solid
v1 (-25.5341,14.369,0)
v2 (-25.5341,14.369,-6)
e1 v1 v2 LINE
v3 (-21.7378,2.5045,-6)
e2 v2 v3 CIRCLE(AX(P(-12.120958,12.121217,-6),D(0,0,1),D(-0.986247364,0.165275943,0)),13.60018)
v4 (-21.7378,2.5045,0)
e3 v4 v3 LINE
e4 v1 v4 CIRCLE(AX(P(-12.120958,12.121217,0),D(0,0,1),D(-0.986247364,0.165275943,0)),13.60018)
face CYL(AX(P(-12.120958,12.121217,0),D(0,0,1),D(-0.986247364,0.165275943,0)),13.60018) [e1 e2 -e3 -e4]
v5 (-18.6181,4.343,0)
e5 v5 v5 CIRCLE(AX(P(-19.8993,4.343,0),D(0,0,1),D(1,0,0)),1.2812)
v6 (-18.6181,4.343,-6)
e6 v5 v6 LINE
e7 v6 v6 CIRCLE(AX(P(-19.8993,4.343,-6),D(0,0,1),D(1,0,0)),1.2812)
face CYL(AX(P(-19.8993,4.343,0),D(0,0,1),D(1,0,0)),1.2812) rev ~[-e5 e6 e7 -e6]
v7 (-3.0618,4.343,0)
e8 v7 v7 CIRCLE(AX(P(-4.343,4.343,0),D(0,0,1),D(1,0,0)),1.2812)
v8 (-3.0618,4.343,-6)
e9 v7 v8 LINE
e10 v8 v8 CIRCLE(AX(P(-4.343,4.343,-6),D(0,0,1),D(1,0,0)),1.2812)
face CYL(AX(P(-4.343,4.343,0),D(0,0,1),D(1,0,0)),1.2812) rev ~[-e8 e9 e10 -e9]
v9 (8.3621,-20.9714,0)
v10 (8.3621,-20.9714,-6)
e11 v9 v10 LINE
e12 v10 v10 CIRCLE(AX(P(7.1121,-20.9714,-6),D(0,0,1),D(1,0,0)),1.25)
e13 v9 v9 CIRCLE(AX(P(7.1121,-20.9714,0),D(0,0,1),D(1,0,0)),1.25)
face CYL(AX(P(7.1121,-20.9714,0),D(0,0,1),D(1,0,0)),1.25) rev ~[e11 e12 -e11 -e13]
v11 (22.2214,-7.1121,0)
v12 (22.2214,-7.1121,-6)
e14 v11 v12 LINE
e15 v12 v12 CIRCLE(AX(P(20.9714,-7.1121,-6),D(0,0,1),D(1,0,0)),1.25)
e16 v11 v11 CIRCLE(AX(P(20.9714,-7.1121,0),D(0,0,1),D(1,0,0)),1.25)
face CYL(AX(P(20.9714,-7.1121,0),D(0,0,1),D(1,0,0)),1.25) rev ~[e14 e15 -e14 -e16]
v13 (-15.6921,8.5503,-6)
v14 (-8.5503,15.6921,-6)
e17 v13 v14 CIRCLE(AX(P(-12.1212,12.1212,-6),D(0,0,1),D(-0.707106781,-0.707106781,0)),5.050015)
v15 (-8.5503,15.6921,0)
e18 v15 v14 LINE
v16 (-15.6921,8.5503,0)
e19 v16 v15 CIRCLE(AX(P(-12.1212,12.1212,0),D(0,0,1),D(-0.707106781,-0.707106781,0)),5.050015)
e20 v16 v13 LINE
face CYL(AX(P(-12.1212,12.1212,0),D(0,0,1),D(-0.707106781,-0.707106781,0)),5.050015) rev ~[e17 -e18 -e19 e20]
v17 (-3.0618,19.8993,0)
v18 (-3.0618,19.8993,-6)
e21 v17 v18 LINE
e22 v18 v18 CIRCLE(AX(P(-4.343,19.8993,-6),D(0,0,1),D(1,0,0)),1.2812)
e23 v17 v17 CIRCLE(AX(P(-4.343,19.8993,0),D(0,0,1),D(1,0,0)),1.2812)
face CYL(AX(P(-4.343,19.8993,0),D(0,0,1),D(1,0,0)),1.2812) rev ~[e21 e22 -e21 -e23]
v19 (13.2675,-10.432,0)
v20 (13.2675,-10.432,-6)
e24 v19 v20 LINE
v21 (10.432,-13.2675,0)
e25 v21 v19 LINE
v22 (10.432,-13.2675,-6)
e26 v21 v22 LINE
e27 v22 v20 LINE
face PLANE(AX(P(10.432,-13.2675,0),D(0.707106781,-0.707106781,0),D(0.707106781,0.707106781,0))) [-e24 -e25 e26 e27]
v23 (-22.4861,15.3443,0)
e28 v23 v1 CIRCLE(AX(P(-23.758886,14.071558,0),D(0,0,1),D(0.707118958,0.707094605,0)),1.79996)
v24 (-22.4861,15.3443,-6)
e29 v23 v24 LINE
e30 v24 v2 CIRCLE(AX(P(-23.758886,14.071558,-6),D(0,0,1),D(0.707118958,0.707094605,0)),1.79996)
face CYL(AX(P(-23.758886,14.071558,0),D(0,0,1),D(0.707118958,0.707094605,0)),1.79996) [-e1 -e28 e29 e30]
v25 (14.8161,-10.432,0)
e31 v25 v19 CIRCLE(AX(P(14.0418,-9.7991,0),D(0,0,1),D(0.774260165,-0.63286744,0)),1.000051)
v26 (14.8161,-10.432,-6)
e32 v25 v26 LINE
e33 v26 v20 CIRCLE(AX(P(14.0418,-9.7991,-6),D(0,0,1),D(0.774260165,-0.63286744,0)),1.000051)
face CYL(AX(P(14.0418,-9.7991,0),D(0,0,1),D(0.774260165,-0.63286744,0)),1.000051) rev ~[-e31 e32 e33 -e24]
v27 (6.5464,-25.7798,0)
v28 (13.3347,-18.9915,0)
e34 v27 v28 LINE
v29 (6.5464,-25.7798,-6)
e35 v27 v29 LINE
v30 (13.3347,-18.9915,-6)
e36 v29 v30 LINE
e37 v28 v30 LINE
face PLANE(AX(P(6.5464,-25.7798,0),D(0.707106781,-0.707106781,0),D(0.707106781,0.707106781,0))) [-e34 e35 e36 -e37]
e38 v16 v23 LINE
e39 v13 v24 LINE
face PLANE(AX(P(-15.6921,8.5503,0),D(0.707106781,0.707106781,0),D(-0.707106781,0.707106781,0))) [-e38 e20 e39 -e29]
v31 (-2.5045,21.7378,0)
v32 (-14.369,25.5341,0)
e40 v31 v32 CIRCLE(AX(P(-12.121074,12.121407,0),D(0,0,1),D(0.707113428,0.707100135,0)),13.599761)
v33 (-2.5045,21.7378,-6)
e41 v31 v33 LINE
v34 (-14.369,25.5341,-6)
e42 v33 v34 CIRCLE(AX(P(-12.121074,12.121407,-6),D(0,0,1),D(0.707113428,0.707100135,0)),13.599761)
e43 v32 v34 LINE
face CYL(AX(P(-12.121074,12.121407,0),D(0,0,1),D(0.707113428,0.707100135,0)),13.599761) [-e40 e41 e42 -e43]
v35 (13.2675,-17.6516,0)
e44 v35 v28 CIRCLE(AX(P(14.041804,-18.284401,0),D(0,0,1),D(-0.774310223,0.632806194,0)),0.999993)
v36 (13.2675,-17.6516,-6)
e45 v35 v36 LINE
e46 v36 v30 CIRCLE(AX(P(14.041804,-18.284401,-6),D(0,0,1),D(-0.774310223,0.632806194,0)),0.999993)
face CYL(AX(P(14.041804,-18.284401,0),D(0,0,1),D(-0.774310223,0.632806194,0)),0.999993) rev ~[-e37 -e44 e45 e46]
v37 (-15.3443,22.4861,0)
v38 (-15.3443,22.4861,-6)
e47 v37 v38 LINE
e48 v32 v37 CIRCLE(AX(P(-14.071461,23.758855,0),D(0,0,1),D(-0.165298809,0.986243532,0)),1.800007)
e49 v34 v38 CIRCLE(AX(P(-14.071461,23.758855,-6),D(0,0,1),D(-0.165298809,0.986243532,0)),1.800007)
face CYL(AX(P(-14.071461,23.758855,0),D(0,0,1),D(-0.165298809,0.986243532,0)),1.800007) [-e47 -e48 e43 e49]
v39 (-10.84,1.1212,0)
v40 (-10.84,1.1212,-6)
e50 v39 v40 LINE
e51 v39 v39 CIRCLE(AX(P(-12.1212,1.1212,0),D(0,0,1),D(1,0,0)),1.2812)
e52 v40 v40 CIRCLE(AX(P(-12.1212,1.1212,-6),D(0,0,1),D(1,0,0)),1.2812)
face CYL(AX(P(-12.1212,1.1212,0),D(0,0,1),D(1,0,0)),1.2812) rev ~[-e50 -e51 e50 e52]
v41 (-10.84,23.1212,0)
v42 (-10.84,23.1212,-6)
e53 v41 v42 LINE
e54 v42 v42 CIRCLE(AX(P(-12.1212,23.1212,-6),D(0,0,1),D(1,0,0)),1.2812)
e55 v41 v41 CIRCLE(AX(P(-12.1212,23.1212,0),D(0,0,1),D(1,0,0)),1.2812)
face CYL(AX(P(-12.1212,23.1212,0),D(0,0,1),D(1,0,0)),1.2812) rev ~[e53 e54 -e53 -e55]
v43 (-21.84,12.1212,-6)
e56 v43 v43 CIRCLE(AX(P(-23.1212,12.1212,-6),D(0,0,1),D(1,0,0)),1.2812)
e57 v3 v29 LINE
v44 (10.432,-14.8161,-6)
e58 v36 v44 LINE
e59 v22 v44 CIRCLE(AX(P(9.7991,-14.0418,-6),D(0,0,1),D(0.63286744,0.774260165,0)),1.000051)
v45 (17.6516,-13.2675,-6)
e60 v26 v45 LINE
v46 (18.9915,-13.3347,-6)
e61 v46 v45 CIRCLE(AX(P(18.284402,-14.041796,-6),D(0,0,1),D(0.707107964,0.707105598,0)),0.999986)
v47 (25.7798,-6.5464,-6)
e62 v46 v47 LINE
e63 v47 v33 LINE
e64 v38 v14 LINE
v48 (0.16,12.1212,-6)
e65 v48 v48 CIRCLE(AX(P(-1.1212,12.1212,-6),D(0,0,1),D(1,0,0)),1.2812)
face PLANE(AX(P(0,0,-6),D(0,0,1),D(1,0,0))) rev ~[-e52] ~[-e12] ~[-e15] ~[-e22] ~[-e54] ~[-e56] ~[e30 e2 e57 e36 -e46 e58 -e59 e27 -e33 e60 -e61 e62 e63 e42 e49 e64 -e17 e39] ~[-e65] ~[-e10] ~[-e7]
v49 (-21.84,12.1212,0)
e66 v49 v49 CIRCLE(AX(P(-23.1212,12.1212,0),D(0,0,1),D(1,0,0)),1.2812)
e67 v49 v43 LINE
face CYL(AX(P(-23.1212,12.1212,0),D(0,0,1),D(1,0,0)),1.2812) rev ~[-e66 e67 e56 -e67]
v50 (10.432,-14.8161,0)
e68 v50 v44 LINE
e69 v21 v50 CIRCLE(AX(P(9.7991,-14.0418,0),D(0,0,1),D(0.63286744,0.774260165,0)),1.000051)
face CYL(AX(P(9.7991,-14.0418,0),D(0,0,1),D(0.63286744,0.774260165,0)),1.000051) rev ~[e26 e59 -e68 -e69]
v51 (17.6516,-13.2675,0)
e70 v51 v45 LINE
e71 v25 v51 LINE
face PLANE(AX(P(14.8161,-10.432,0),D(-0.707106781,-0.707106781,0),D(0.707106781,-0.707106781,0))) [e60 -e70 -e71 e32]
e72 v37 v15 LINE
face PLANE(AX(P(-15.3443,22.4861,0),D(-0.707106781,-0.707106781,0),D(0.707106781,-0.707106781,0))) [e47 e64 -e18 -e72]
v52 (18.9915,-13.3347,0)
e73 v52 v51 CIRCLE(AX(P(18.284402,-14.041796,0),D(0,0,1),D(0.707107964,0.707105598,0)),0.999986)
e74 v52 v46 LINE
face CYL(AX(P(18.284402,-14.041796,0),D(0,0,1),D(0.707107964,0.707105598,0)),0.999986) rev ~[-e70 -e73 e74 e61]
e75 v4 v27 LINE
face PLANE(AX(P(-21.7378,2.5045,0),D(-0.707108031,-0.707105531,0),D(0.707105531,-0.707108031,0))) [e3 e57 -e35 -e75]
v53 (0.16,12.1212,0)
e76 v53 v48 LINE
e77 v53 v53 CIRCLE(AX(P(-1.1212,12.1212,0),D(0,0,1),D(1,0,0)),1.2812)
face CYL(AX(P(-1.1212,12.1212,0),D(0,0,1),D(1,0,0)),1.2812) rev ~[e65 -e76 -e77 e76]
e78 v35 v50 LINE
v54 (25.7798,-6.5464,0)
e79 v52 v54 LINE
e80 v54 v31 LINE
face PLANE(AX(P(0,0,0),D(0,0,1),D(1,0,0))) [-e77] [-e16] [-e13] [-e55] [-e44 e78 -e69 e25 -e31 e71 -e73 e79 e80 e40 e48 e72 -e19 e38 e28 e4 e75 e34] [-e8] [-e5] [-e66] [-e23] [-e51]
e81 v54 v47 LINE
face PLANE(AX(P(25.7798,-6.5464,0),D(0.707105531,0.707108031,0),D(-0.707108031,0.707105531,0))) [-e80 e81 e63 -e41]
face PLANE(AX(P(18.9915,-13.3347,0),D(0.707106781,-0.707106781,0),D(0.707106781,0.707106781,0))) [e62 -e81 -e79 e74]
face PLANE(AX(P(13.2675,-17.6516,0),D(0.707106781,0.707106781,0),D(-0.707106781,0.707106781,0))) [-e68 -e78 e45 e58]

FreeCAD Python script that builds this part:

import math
import FreeCAD as App
import Part
import Sketcher

doc = App.newDocument("Part")
params = doc.addObject("Spreadsheet::Sheet", "Params")
for row, (alias, value) in enumerate([
    ("sketch1_radius", "1 mm"),
    ("sketch1_diameter", "2.5 mm"),
    ("sketch1_radius2", "13.6 mm"),
    ("sketch1_radius3", "1.8 mm"),
    ("sketch1_radius4", "5.05 mm"),
    ("pad1_length", "6 mm"),
], start=1):
    params.set(f"A{row}", alias)
    params.set(f"B{row}", "=" + value)
    params.setAlias(f"B{row}", alias)

body = doc.addObject("PartDesign::Body", "Body")

sketch1 = doc.addObject("Sketcher::SketchObject", "Sketch")
body.addObject(sketch1)
sketch1.AttachmentSupport = (doc.XY_Plane, [""])
sketch1.MapMode = "FlatFace"
sketch1.addGeometry([
    Part.LineSegment(App.Vector(18.9915, -13.3347, 0), App.Vector(25.7798, -6.5464, 0)),
    Part.LineSegment(App.Vector(25.7798, -6.5464, 0), App.Vector(-2.5045, 21.7378, 0)),
    Part.ArcOfCircle(Part.Circle(App.Vector(-12.1212, 12.1212, 0), App.Vector(0, 0, 1), 13.599945), math.radians(44.999702), math.radians(99.513506)),
    Part.ArcOfCircle(Part.Circle(App.Vector(-14.0715, 23.7589, 0), App.Vector(0, 0, 1), 1.799956), math.radians(99.513607), math.radians(225)),
    Part.LineSegment(App.Vector(-15.3443, 22.4861, 0), App.Vector(-8.5503, 15.6921, 0)),
    Part.ArcOfCircle(Part.Circle(App.Vector(-12.1212, 12.1212, 0), App.Vector(0, 0, 1), 5.050015), math.radians(-135), math.radians(45)),
    Part.LineSegment(App.Vector(-15.6921, 8.5503, 0), App.Vector(-22.4861, 15.3443, 0)),
    Part.ArcOfCircle(Part.Circle(App.Vector(-23.7589, 14.0715, 0), App.Vector(0, 0, 1), 1.800011), math.radians(45), math.radians(170.486393)),
    Part.ArcOfCircle(Part.Circle(App.Vector(-12.1212, 12.1212, 0), App.Vector(0, 0, 1), 13.599997), math.radians(170.486494), math.radians(225.000298)),
    Part.LineSegment(App.Vector(-21.7378, 2.5045, 0), App.Vector(6.5464, -25.7798, 0)),
    Part.LineSegment(App.Vector(6.5464, -25.7798, 0), App.Vector(13.3347, -18.9915, 0)),
    Part.ArcOfCircle(Part.Circle(App.Vector(14.0418, -18.2844, 0), App.Vector(0, 0, 1), 0.999988), math.radians(140.742441), math.radians(225)),
    Part.LineSegment(App.Vector(13.2675, -17.6516, 0), App.Vector(10.432, -14.8161, 0)),
    Part.ArcOfCircle(Part.Circle(App.Vector(9.7991, -14.0418, 0), App.Vector(0, 0, 1), 1.000051), math.radians(50.738005), math.radians(309.261995)),
    Part.LineSegment(App.Vector(10.432, -13.2675, 0), App.Vector(13.2675, -10.432, 0)),
    Part.ArcOfCircle(Part.Circle(App.Vector(14.0418, -9.7991, 0), App.Vector(0, 0, 1), 1.000051), math.radians(-39.261995), math.radians(219.261995)),
    Part.LineSegment(App.Vector(14.8161, -10.432, 0), App.Vector(17.6516, -13.2675, 0)),
    Part.ArcOfCircle(Part.Circle(App.Vector(18.2844, -14.0418, 0), App.Vector(0, 0, 1), 0.99999), math.radians(45), math.radians(129.257559)),
    Part.Circle(App.Vector(7.1121, -20.9714, 0), App.Vector(0, 0, 1), 1.25),
    Part.Circle(App.Vector(20.9714, -7.1121, 0), App.Vector(0, 0, 1), 1.25),
    Part.Circle(App.Vector(-19.8993, 4.343, 0), App.Vector(0, 0, 1), 1.2812),
    Part.Circle(App.Vector(-23.1212, 12.1212, 0), App.Vector(0, 0, 1), 1.2812),
    Part.Circle(App.Vector(-12.1212, 1.1212, 0), App.Vector(0, 0, 1), 1.2812),
    Part.Circle(App.Vector(-4.343, 4.343, 0), App.Vector(0, 0, 1), 1.2812),
    Part.Circle(App.Vector(-1.1212, 12.1212, 0), App.Vector(0, 0, 1), 1.2812),
    Part.Circle(App.Vector(-12.1212, 23.1212, 0), App.Vector(0, 0, 1), 1.2812),
    Part.Circle(App.Vector(-4.343, 19.8993, 0), App.Vector(0, 0, 1), 1.2812),
], False)
sketch1.addConstraint([
    Sketcher.Constraint("Coincident", 0, 2, 1, 1),
    Sketcher.Constraint("Tangent", 1, 2, 2, 1),
    Sketcher.Constraint("Tangent", 2, 2, 3, 1),
    Sketcher.Constraint("Tangent", 3, 2, 4, 1),
    Sketcher.Constraint("Tangent", 4, 2, 5, 2),
    Sketcher.Constraint("Tangent", 5, 1, 6, 1),
    Sketcher.Constraint("Tangent", 6, 2, 7, 1),
    Sketcher.Constraint("Tangent", 7, 2, 8, 1),
    Sketcher.Constraint("Tangent", 8, 2, 9, 1),
    Sketcher.Constraint("Coincident", 9, 2, 10, 1),
    Sketcher.Constraint("Coincident", 10, 2, 11, 2),
    Sketcher.Constraint("Coincident", 11, 1, 12, 1),
    Sketcher.Constraint("Coincident", 12, 2, 13, 2),
    Sketcher.Constraint("Coincident", 13, 1, 14, 1),
    Sketcher.Constraint("Coincident", 14, 2, 15, 2),
    Sketcher.Constraint("Coincident", 15, 1, 16, 1),
    Sketcher.Constraint("Coincident", 16, 2, 17, 2),
    Sketcher.Constraint("Coincident", 17, 1, 0, 1),
    Sketcher.Constraint("Coincident", 5, 3, 2, 3),
    Sketcher.Constraint("Coincident", 8, 3, 2, 3),
    Sketcher.Constraint("Equal", 3, 7),
    Sketcher.Constraint("Equal", 2, 8),
    Sketcher.Constraint("Equal", 11, 13),
    Sketcher.Constraint("Equal", 13, 15),
    Sketcher.Constraint("Equal", 15, 17),
    Sketcher.Constraint("Equal", 18, 19),
    Sketcher.Constraint("Equal", 20, 21),
    Sketcher.Constraint("Equal", 21, 22),
    Sketcher.Constraint("Equal", 22, 23),
    Sketcher.Constraint("Equal", 23, 24),
    Sketcher.Constraint("Equal", 24, 25),
    Sketcher.Constraint("Equal", 25, 26),
    Sketcher.Constraint("Perpendicular", 0, 1),
    Sketcher.Constraint("Parallel", 1, 4),
    Sketcher.Constraint("Parallel", 4, 6),
    Sketcher.Constraint("Parallel", 6, 9),
    Sketcher.Constraint("Perpendicular", 9, 10),
    Sketcher.Constraint("Perpendicular", 10, 12),
    Sketcher.Constraint("Perpendicular", 12, 14),
    Sketcher.Constraint("Perpendicular", 14, 16),
    Sketcher.Constraint("Horizontal", 13, 3, 17, 3),
    Sketcher.Constraint("Horizontal", 8, 3, 21, 3),
    Sketcher.Constraint("Horizontal", 20, 3, 23, 3),
    Sketcher.Constraint("Horizontal", 21, 3, 24, 3),
    Sketcher.Constraint("Horizontal", 14, 2, 15, 1),
    Sketcher.Constraint("Horizontal", 13, 1, 16, 2),
    Sketcher.Constraint("Vertical", 11, 3, 15, 3),
    Sketcher.Constraint("Vertical", 8, 3, 22, 3),
    Sketcher.Constraint("Vertical", 22, 3, 25, 3),
    Sketcher.Constraint("Vertical", 23, 3, 26, 3),
    Sketcher.Constraint("Vertical", 12, 2, 13, 1),
    Sketcher.Constraint("Vertical", 11, 1, 14, 2),
    Sketcher.Constraint("Equal", 1, 9),
    Sketcher.Constraint("Equal", 0, 10),
    Sketcher.Constraint("Equal", 12, 14),
    Sketcher.Constraint("Radius", 11, 1.0),
    Sketcher.Constraint("Diameter", 18, 2.5),
    Sketcher.Constraint("Radius", 2, 13.6),
    Sketcher.Constraint("Radius", 3, 1.8),
    Sketcher.Constraint("Radius", 5, 5.05),
    Sketcher.Constraint("Distance", 1, 40.0),
    Sketcher.Constraint("DistanceX", 21, 3, 2, 3, 11.0),
    Sketcher.Constraint("DistanceY", 22, 3, 2, 3, 11.0),
    Sketcher.Constraint("DistanceX", 2, 3, 24, 3, 11.0),
    Sketcher.Constraint("DistanceY", 2, 3, 25, 3, 11.0),
    Sketcher.Constraint("Distance", 0, 9.6),
    Sketcher.Constraint("Diameter", 20, 2.5624),
    Sketcher.Constraint("Distance", 12, 4.01),
    Sketcher.Constraint("DistanceY", 18, 3, 10, 2, 1.98),
    Sketcher.Constraint("DistanceY", 10, 2, 11, 1, 1.34),
    Sketcher.Constraint("DistanceX", 16, 2, 17, 1, 1.34),
    Sketcher.Constraint("DistanceY", -1, 1, 3, 3, 23.759),
    Sketcher.Constraint("DistanceX", 7, 3, -1, 1, 23.759),
    Sketcher.Constraint("DistanceX", -1, 1, 18, 3, 7.112),
    Sketcher.Constraint("DistanceY", 19, 3, -1, 1, 7.112),
    Sketcher.Constraint("DistanceY", -1, 1, 20, 3, 4.343),
    Sketcher.Constraint("DistanceX", 23, 3, -1, 1, 4.343),
    Sketcher.Constraint("DistanceX", 17, 3, 19, 3, 2.687),
    Sketcher.Constraint("DistanceX", 20, 3, 2, 3, 7.778),
    Sketcher.Constraint("DistanceY", 24, 3, 26, 3, 7.778),
])
sketch1.setExpression("Constraints[55]", "Params.sketch1_radius")
sketch1.setExpression("Constraints[56]", "Params.sketch1_diameter")
sketch1.setExpression("Constraints[57]", "Params.sketch1_radius2")
sketch1.setExpression("Constraints[58]", "Params.sketch1_radius3")
sketch1.setExpression("Constraints[59]", "Params.sketch1_radius4")
pad1 = doc.addObject("PartDesign::Pad", "Pad")
body.addObject(pad1)
pad1.Profile = sketch1
pad1.setExpression("Length", "Params.pad1_length")
pad1.Reversed = True

doc.recompute()
